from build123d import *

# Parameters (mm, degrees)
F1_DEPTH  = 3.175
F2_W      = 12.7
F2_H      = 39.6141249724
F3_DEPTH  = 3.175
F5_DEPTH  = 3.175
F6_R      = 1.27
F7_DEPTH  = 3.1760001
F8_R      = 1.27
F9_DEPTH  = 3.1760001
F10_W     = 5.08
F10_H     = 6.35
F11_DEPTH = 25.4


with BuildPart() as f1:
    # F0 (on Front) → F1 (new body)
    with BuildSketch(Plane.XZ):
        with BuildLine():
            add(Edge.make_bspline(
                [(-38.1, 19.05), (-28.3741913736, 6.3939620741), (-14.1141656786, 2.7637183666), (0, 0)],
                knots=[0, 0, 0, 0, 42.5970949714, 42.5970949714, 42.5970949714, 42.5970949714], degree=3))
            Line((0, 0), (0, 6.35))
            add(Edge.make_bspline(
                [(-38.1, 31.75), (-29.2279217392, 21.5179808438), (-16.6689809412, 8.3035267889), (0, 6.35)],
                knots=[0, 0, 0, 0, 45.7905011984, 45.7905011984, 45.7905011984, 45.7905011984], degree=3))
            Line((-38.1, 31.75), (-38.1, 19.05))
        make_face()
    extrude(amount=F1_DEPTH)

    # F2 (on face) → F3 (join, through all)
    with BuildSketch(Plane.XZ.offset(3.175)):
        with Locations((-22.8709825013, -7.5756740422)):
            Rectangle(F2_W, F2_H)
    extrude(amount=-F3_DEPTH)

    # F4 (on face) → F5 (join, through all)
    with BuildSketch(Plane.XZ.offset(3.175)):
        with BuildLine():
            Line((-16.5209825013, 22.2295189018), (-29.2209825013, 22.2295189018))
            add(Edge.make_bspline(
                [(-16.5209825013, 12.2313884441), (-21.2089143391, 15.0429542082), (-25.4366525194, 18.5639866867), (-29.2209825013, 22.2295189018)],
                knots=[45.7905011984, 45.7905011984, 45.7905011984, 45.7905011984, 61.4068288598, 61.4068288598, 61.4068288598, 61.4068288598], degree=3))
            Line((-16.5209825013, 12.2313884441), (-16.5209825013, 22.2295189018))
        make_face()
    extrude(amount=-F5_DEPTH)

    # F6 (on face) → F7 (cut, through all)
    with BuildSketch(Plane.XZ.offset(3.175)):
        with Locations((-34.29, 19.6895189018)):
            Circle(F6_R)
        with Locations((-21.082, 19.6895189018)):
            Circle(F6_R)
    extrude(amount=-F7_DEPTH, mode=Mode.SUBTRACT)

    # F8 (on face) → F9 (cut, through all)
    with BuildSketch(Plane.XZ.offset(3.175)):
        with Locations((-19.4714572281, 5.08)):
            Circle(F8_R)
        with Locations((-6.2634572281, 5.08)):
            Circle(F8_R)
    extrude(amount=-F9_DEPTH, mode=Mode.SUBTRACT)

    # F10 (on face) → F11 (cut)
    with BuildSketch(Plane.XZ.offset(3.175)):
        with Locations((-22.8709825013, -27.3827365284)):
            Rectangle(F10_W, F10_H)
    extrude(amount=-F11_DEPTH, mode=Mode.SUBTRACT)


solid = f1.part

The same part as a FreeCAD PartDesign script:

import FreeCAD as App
import Part
import Sketcher

V = App.Vector
Q = App.Units.Quantity

doc = App.newDocument("Part")
body = doc.addObject("PartDesign::Body", "Body")

# Sketch on XZ plane
sketch1 = doc.addObject("Sketcher::SketchObject", "Sketch")
body.addObject(sketch1)
sketch1.AttachmentSupport = (doc.XZ_Plane, [""])
sketch1.MapMode = "FlatFace"
sketch1.addGeometry(Part.BSplineCurve([V(-38.1, 19.05, 0), V(-28.374191, 6.393962, 0), V(-14.114166, 2.763718, 0), V(0, 0, 0)], [4, 4], [0, 42.597094971], False, 3, [1, 1, 1, 1], False), False)
sketch1.addGeometry(Part.LineSegment(V(0, 0, 0), V(0, 6.35, 0)), False)
sketch1.addGeometry(Part.BSplineCurve([V(-38.1, 31.75, 0), V(-29.227922, 21.517981, 0), V(-16.668981, 8.303527, 0), V(0, 6.35, 0)], [4, 4], [0, 45.790501198], False, 3, [1, 1, 1, 1], False), False)
sketch1.addGeometry(Part.LineSegment(V(-38.1, 31.75, 0), V(-38.1, 19.05, 0)), False)
sketch1.addConstraint(Sketcher.Constraint("Block", 0))
sketch1.addConstraint(Sketcher.Constraint("Block", 2))
sketch1.addConstraint(Sketcher.Constraint("Coincident", 0, 2, 1, 1))
sketch1.addConstraint(Sketcher.Constraint("Coincident", 1, 2, 2, 2))
sketch1.addConstraint(Sketcher.Constraint("Coincident", 2, 1, 3, 1))
sketch1.addConstraint(Sketcher.Constraint("Coincident", 3, 2, 0, 1))
pad1 = doc.addObject("PartDesign::Pad", "Pad")
body.addObject(pad1)
pad1.Profile = sketch1
pad1.Length = Q("0.125 in")

# Sketch on XZ plane
sketch2 = doc.addObject("Sketcher::SketchObject", "Sketch001")
body.addObject(sketch2)
sketch2.AttachmentSupport = (doc.XZ_Plane, [""])
sketch2.MapMode = "FlatFace"
sketch2.AttachmentOffset = App.Placement(V(0, 0, 0.125 * 25.4), App.Rotation())
sketch2.addGeometry(Part.LineSegment(V(-29.220983, 12.231388, 0), V(-29.220983, -27.382737, 0)), False)
sketch2.addGeometry(Part.LineSegment(V(-29.220983, -27.382737, 0), V(-16.520983, -27.382737, 0)), False)
sketch2.addGeometry(Part.LineSegment(V(-16.520983, -27.382737, 0), V(-16.520983, 12.231388, 0)), False)
sketch2.addGeometry(Part.LineSegment(V(-16.520983, 12.231388, 0), V(-29.220983, 12.231388, 0)), False)
sketch2.addConstraint(Sketcher.Constraint("Coincident", 0, 2, 1, 1))
sketch2.addConstraint(Sketcher.Constraint("Coincident", 1, 2, 2, 1))
sketch2.addConstraint(Sketcher.Constraint("Coincident", 2, 2, 3, 1))
sketch2.addConstraint(Sketcher.Constraint("Coincident", 3, 2, 0, 1))
sketch2.addConstraint(Sketcher.Constraint("Vertical", 0))
sketch2.addConstraint(Sketcher.Constraint("Horizontal", 1))
sketch2.addConstraint(Sketcher.Constraint("Vertical", 2))
sketch2.addConstraint(Sketcher.Constraint("Horizontal", 3))
sketch2.addConstraint(Sketcher.Constraint("DistanceX", 1, 1, 1, 2, Q("0.5 in")))
sketch2.addConstraint(Sketcher.Constraint("DistanceY", 0, 2, 0, 1, Q("39.614125 mm")))
sketch2.addConstraint(Sketcher.Constraint("DistanceY", -1, 1, 2, 2, Q("12.231388 mm")))
sketch2.addConstraint(Sketcher.Constraint("DistanceX", 0, 2, -1, 1, Q("29.220983 mm")))
pad2 = doc.addObject("PartDesign::Pad", "Pad001")
body.addObject(pad2)
pad2.Profile = sketch2
pad2.Length = Q("0.125 in")
pad2.Reversed = True

# Sketch on XZ plane
sketch3 = doc.addObject("Sketcher::SketchObject", "Sketch002")
body.addObject(sketch3)
sketch3.AttachmentSupport = (doc.XZ_Plane, [""])
sketch3.MapMode = "FlatFace"
sketch3.AttachmentOffset = App.Placement(V(0, 0, 0.125 * 25.4), App.Rotation())
sketch3.addGeometry(Part.LineSegment(V(-16.520983, 22.229519, 0), V(-29.220983, 22.229519, 0)), False)
sketch3.addGeometry(Part.BSplineCurve([V(-16.520983, 12.231388, 0), V(-21.208914, 15.042954, 0), V(-25.436653, 18.563987, 0), V(-29.220983, 22.229519, 0)], [4, 4], [45.790501198, 61.40682886], False, 3, [1, 1, 1, 1], False), False)
sketch3.addGeometry(Part.LineSegment(V(-16.520983, 12.231388, 0), V(-16.520983, 22.229519, 0)), False)
sketch3.addConstraint(Sketcher.Constraint("Block", 1))
sketch3.addConstraint(Sketcher.Constraint("Coincident", 0, 2, 1, 2))
sketch3.addConstraint(Sketcher.Constraint("Coincident", 1, 1, 2, 1))
sketch3.addConstraint(Sketcher.Constraint("Coincident", 2, 2, 0, 1))
sketch3.addConstraint(Sketcher.Constraint("Horizontal", 0))
sketch3.addConstraint(Sketcher.Constraint("Vertical", 2))
pad3 = doc.addObject("PartDesign::Pad", "Pad002")
body.addObject(pad3)
pad3.Profile = sketch3
pad3.Length = Q("0.125 in")
pad3.Reversed = True

# Sketch on XZ plane
sketch4 = doc.addObject("Sketcher::SketchObject", "Sketch003")
body.addObject(sketch4)
sketch4.AttachmentSupport = (doc.XZ_Plane, [""])
sketch4.MapMode = "FlatFace"
sketch4.AttachmentOffset = App.Placement(V(0, 0, 0.125 * 25.4), App.Rotation())
sketch4.addGeometry(Part.Circle(V(-34.29, 19.689519, 0), V(0, 0, 1), 1.27), False)
sketch4.addGeometry(Part.Circle(V(-21.082, 19.689519, 0), V(0, 0, 1), 1.27), False)
sketch4.addConstraint(Sketcher.Constraint("Equal", 0, 1))
sketch4.addConstraint(Sketcher.Constraint("Horizontal", 0, 3, 1, 3))
sketch4.addConstraint(Sketcher.Constraint("Diameter", 0, Q("0.1 in")))
sketch4.addConstraint(Sketcher.Constraint("DistanceX", 0, 3, -1, 1, Q("1.35 in")))
sketch4.addConstraint(Sketcher.Constraint("DistanceX", 1, 3, -1, 1, Q("0.83 in")))
sketch4.addConstraint(Sketcher.Constraint("DistanceY", -1, 1, 0, 3, Q("19.689519 mm")))
pocket1 = doc.addObject("PartDesign::Pocket", "Pocket")
body.addObject(pocket1)
pocket1.Profile = sketch4
pocket1.Type = "ThroughAll"

# Sketch on XZ plane
sketch5 = doc.addObject("Sketcher::SketchObject", "Sketch004")
body.addObject(sketch5)
sketch5.AttachmentSupport = (doc.XZ_Plane, [""])
sketch5.MapMode = "FlatFace"
sketch5.AttachmentOffset = App.Placement(V(0, 0, 0.125 * 25.4), App.Rotation())
sketch5.addGeometry(Part.Circle(V(-19.471457, 5.08, 0), V(0, 0, 1), 1.27), False)
sketch5.addGeometry(Part.Circle(V(-6.263457, 5.08, 0), V(0, 0, 1), 1.27), False)
sketch5.addConstraint(Sketcher.Constraint("Equal", 0, 1))
sketch5.addConstraint(Sketcher.Constraint("Horizontal", 0, 3, 1, 3))
sketch5.addConstraint(Sketcher.Constraint("Diameter", 0, Q("0.1 in")))
sketch5.addConstraint(Sketcher.Constraint("DistanceY", -1, 1, 0, 3, Q("0.2 in")))
sketch5.addConstraint(Sketcher.Constraint("DistanceX", 0, 3, 1, 3, Q("0.52 in")))
sketch5.addConstraint(Sketcher.Constraint("DistanceX", 0, 3, -1, 1, Q("19.471457 mm")))
pocket2 = doc.addObject("PartDesign::Pocket", "Pocket001")
body.addObject(pocket2)
pocket2.Profile = sketch5
pocket2.Type = "ThroughAll"

# Sketch on XZ plane
sketch6 = doc.addObject("Sketcher::SketchObject", "Sketch005")
body.addObject(sketch6)
sketch6.AttachmentSupport = (doc.XZ_Plane, [""])
sketch6.MapMode = "FlatFace"
sketch6.AttachmentOffset = App.Placement(V(0, 0, 0.125 * 25.4), App.Rotation())
sketch6.addGeometry(Part.LineSegment(V(-25.410983, -24.207737, 0), V(-25.410983, -30.557737, 0)), False)
sketch6.addGeometry(Part.LineSegment(V(-25.410983, -30.557737, 0), V(-20.330983, -30.557737, 0)), False)
sketch6.addGeometry(Part.LineSegment(V(-20.330983, -30.557737, 0), V(-20.330983, -24.207737, 0)), False)
sketch6.addGeometry(Part.LineSegment(V(-20.330983, -24.207737, 0), V(-25.410983, -24.207737, 0)), False)
sketch6.addConstraint(Sketcher.Constraint("Coincident", 0, 2, 1, 1))
sketch6.addConstraint(Sketcher.Constraint("Coincident", 1, 2, 2, 1))
sketch6.addConstraint(Sketcher.Constraint("Coincident", 2, 2, 3, 1))
sketch6.addConstraint(Sketcher.Constraint("Coincident", 3, 2, 0, 1))
sketch6.addConstraint(Sketcher.Constraint("Vertical", 0))
sketch6.addConstraint(Sketcher.Constraint("Horizontal", 1))
sketch6.addConstraint(Sketcher.Constraint("Vertical", 2))
sketch6.addConstraint(Sketcher.Constraint("Horizontal", 3))
sketch6.addConstraint(Sketcher.Constraint("DistanceX", 1, 1, 1, 2, Q("0.2 in")))
sketch6.addConstraint(Sketcher.Constraint("DistanceY", 0, 2, 0, 1, Q("0.25 in")))
sketch6.addConstraint(Sketcher.Constraint("DistanceX", 0, 2, -1, 1, Q("25.410983 mm")))
sketch6.addConstraint(Sketcher.Constraint("DistanceY", 0, 2, -1, 1, Q("30.557737 mm")))
pocket3 = doc.addObject("PartDesign::Pocket", "Pocket002")
body.addObject(pocket3)
pocket3.Profile = sketch6
pocket3.Length = Q("1 in")

doc.recompute()
